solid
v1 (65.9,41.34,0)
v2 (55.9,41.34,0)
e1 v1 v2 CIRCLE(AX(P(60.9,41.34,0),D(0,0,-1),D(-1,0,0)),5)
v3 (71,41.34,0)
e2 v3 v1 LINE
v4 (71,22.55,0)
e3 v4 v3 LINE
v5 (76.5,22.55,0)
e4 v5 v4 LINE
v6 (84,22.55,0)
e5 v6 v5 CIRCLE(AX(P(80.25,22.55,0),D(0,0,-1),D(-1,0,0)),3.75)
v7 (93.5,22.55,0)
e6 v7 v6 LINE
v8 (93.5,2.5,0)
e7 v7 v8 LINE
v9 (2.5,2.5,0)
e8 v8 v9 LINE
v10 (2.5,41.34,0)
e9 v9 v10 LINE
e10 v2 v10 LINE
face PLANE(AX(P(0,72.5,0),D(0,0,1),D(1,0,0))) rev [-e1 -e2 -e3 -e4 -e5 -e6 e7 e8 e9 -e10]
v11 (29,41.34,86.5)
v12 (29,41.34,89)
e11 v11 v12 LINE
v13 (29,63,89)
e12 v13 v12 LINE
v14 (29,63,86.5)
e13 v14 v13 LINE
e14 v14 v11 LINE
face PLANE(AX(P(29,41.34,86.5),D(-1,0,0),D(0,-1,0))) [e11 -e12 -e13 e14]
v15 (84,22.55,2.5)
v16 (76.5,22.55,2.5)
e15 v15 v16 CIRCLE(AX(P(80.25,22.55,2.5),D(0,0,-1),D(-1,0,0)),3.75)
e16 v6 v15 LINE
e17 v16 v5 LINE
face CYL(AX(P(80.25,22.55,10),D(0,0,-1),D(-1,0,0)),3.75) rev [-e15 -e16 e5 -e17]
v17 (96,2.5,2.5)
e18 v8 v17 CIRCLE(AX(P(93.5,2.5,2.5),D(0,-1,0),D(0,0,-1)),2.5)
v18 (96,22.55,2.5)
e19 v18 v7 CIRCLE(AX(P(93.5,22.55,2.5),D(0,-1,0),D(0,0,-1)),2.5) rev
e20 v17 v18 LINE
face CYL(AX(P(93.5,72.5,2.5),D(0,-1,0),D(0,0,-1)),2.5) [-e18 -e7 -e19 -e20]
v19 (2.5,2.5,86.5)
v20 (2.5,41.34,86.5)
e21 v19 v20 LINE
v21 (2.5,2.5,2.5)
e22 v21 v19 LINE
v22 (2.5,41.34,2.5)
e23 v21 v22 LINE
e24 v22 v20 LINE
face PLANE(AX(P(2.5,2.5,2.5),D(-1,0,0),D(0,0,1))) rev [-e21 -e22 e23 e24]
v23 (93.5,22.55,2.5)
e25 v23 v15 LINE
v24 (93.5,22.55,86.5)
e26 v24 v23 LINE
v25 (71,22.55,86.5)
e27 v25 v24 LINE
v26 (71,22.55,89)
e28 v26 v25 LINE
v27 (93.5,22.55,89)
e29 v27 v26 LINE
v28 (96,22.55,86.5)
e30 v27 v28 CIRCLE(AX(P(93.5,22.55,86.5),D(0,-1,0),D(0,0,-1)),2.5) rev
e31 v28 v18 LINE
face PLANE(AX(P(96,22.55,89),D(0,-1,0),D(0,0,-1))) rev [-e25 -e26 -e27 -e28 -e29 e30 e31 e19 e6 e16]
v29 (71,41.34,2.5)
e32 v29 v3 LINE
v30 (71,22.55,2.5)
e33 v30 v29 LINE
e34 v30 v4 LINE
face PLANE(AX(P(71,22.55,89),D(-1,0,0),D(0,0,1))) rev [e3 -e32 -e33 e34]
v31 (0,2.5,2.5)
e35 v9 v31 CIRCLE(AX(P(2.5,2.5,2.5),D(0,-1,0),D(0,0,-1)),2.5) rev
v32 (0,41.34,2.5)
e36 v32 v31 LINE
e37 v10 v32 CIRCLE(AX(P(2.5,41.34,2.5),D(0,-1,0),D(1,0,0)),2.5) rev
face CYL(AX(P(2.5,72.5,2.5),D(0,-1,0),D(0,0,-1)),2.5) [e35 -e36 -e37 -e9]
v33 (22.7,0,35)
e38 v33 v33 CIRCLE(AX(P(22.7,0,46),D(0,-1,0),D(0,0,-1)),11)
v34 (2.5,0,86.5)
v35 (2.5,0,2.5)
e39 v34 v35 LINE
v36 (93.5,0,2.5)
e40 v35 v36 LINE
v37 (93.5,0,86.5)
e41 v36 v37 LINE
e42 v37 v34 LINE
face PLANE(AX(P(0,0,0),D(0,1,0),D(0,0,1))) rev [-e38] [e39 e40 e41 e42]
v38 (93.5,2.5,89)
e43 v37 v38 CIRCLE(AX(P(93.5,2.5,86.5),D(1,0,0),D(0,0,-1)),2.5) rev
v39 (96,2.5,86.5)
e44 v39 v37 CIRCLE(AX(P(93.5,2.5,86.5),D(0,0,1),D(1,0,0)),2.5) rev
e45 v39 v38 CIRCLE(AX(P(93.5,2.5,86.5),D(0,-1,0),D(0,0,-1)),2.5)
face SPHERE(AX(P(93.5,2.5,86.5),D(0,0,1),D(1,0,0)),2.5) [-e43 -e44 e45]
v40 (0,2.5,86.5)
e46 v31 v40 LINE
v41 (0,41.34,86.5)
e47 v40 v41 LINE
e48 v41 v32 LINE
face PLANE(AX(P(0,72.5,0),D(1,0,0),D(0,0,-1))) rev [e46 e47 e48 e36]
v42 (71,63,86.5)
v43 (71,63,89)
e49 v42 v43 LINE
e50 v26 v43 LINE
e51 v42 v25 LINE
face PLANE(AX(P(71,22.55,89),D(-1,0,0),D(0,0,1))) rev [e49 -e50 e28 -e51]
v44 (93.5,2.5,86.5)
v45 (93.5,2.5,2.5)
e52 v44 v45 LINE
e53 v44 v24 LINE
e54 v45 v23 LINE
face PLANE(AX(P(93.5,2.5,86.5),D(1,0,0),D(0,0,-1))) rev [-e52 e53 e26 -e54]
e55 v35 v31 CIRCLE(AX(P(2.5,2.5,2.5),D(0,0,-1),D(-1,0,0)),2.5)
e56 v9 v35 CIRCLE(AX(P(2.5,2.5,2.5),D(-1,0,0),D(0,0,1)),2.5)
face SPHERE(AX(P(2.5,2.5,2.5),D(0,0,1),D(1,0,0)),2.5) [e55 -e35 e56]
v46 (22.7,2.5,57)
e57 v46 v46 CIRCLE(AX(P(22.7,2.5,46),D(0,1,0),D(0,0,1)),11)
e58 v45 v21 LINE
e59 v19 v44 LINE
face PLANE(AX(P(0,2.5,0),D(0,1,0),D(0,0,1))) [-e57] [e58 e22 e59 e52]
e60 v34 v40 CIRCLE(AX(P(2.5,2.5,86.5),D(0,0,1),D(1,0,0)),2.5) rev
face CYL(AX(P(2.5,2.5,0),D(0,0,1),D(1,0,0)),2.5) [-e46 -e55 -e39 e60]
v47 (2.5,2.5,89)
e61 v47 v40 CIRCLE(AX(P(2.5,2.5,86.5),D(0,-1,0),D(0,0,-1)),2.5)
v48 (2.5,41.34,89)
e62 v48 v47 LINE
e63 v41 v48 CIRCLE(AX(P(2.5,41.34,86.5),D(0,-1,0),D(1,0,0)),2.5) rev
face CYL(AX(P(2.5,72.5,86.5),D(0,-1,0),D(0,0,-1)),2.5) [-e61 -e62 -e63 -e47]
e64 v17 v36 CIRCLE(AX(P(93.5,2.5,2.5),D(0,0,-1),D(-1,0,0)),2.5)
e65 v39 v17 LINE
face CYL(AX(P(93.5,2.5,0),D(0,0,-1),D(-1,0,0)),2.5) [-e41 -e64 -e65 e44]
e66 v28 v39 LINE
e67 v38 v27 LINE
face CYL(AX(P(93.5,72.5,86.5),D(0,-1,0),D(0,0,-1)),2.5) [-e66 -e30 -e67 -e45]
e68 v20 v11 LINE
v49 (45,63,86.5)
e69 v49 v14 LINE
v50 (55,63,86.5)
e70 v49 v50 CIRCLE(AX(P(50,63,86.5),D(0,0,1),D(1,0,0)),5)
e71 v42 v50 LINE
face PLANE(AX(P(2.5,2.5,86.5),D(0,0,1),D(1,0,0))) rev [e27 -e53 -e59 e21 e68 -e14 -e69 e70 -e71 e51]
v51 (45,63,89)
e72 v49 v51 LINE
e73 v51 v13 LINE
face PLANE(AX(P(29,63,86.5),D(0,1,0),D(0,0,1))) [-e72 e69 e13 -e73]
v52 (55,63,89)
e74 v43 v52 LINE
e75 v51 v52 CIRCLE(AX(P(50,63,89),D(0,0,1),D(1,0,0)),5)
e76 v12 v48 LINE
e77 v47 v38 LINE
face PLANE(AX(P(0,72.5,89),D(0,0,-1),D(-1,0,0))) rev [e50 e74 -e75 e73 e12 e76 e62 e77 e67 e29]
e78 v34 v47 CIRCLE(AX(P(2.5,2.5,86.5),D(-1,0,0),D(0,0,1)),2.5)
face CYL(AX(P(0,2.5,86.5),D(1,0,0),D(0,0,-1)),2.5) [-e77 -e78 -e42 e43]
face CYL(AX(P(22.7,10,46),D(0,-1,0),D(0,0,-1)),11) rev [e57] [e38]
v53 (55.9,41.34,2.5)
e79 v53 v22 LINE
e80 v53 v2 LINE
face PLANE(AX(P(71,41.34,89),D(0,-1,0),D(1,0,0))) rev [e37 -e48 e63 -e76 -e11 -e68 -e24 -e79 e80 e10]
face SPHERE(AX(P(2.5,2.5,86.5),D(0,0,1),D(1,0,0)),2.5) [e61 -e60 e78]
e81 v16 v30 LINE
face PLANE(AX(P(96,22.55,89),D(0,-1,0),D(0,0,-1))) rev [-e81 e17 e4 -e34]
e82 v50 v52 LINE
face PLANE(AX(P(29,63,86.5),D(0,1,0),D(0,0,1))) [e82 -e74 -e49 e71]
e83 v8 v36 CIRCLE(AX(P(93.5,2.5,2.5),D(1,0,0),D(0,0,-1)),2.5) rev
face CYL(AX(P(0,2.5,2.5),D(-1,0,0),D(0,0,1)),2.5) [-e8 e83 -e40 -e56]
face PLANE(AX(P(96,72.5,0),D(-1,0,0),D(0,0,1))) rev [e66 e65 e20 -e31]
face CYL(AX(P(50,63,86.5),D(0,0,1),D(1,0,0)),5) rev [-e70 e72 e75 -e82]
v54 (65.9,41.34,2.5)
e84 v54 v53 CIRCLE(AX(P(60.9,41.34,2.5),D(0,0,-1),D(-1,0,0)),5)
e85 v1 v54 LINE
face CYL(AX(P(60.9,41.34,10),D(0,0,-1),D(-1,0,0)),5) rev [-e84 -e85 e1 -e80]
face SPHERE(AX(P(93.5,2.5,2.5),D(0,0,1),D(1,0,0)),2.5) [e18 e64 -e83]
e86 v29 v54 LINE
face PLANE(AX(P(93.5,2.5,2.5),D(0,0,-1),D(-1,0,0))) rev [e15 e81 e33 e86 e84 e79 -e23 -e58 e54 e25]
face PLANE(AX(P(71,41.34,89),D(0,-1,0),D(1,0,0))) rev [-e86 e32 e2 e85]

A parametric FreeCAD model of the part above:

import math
import FreeCAD as App
import Part
import Sketcher
from FreeCAD import Vector


def edges_at(feature, points):
    """Names of the edges that pass closest to the given points."""
    edges = feature.Shape.Edges
    near = lambda p: min(range(len(edges)), key=lambda i: edges[i].distToShape(Part.Vertex(*p))[0])
    return sorted({f"Edge{near(p) + 1}" for p in points})

doc = App.newDocument("Part")
body = doc.addObject("PartDesign::Body", "Body")

sketch1 = body.newObject("Sketcher::SketchObject", "Sketch")
sketch1.AttachmentSupport = (doc.getObject("XZ_Plane"), [""])
sketch1.MapMode = "FlatFace"
sketch1.addGeometry([
    Part.LineSegment(Vector(0, 0, 0), Vector(0, 89, 0)),
    Part.LineSegment(Vector(0, 89, 0), Vector(96, 89, 0)),
    Part.LineSegment(Vector(96, 89, 0), Vector(96, 0, 0)),
    Part.LineSegment(Vector(96, 0, 0), Vector(0, 0, 0)),
], False)
sketch1.addConstraint([
    Sketcher.Constraint("Coincident", 0, 2, 1, 1),
    Sketcher.Constraint("Coincident", 1, 2, 2, 1),
    Sketcher.Constraint("Coincident", 2, 2, 3, 1),
    Sketcher.Constraint("Coincident", 3, 2, 0, 1),
    Sketcher.Constraint("Vertical", 0),
    Sketcher.Constraint("Horizontal", 1),
    Sketcher.Constraint("Vertical", 2),
    Sketcher.Constraint("Horizontal", 3),
    Sketcher.Constraint("Coincident", 3, 2, -1, 1),
    Sketcher.Constraint("DistanceX", 1, 1, 1, 2, 96.0),
    Sketcher.Constraint("DistanceY", 0, 1, 0, 2, 89.0),
])
pad1 = body.newObject("PartDesign::Pad", "Pad")
pad1.Profile = sketch1
pad1.Length = 72.5
pad1.Reversed = True

sketch2 = body.newObject("Sketcher::SketchObject", "Sketch001")
sketch2.AttachmentSupport = (doc.getObject("XZ_Plane"), [""])
sketch2.MapMode = "FlatFace"
sketch2.AttachmentOffset = App.Placement(Vector(0, 0, -72.5), App.Rotation())
sketch2.addGeometry([
    Part.LineSegment(Vector(2.5, 2.5, 0), Vector(2.5, 86.5, 0)),
    Part.LineSegment(Vector(2.5, 86.5, 0), Vector(93.5, 86.5, 0)),
    Part.LineSegment(Vector(93.5, 86.5, 0), Vector(93.5, 2.5, 0)),
    Part.LineSegment(Vector(93.5, 2.5, 0), Vector(2.5, 2.5, 0)),
], False)
sketch2.addConstraint([
    Sketcher.Constraint("Coincident", 0, 2, 1, 1),
    Sketcher.Constraint("Coincident", 1, 2, 2, 1),
    Sketcher.Constraint("Coincident", 2, 2, 3, 1),
    Sketcher.Constraint("Coincident", 3, 2, 0, 1),
    Sketcher.Constraint("Vertical", 0),
    Sketcher.Constraint("Horizontal", 1),
    Sketcher.Constraint("Vertical", 2),
    Sketcher.Constraint("Horizontal", 3),
    Sketcher.Constraint("DistanceX", 1, 1, 1, 2, 91.0),
    Sketcher.Constraint("DistanceY", 0, 1, 0, 2, 84.0),
    Sketcher.Constraint("DistanceX", -1, 1, 0, 2, 2.5),
    Sketcher.Constraint("DistanceY", -1, 1, 0, 2, 86.5),
])
pocket1 = body.newObject("PartDesign::Pocket", "Pocket")
pocket1.Profile = sketch2
pocket1.Length = 70
pocket1.Reversed = True

sketch3 = body.newObject("Sketcher::SketchObject", "Sketch002")
sketch3.AttachmentSupport = (doc.getObject("XZ_Plane"), [""])
sketch3.MapMode = "FlatFace"
sketch3.addGeometry(Part.Circle(Vector(22.7, 46, 0), Vector(0, 0, 1), 11), False)
sketch3.addConstraint([
    Sketcher.Constraint("Diameter", 0, 22.0),
    Sketcher.Constraint("DistanceY", -1, 1, 0, 3, 46.0),
    Sketcher.Constraint("DistanceX", -1, 1, 0, 3, 22.7),
])
pocket2 = body.newObject("PartDesign::Pocket", "Pocket001")
pocket2.Profile = sketch3
pocket2.Length = 10

sketch4 = body.newObject("Sketcher::SketchObject", "Sketch003")
sketch4.AttachmentSupport = (doc.getObject("XY_Plane"), [""])
sketch4.MapMode = "FlatFace"
sketch4.addGeometry([
    Part.LineSegment(Vector(96, 22.55, 0), Vector(71, 22.55, 0)),
    Part.LineSegment(Vector(71, 22.55, 0), Vector(71, 41.34, 0)),
    Part.LineSegment(Vector(71, 41.34, 0), Vector(0, 41.34, 0)),
    Part.LineSegment(Vector(0, 41.34, 0), Vector(0, 72.5, 0)),
    Part.LineSegment(Vector(0, 72.5, 0), Vector(96, 72.5, 0)),
    Part.LineSegment(Vector(96, 72.5, 0), Vector(96, 22.55, 0)),
], False)
sketch4.addConstraint([
    Sketcher.Constraint("Coincident", 0, 2, 1, 1),
    Sketcher.Constraint("Coincident", 1, 2, 2, 1),
    Sketcher.Constraint("Coincident", 2, 2, 3, 1),
    Sketcher.Constraint("Coincident", 3, 2, 4, 1),
    Sketcher.Constraint("Coincident", 4, 2, 5, 1),
    Sketcher.Constraint("Coincident", 5, 2, 0, 1),
    Sketcher.Constraint("Horizontal", 0),
    Sketcher.Constraint("Vertical", 1),
    Sketcher.Constraint("Horizontal", 2),
    Sketcher.Constraint("Vertical", 3),
    Sketcher.Constraint("Horizontal", 4),
    Sketcher.Constraint("Vertical", 5),
    Sketcher.Constraint("PointOnObject", 2, 2, -2),
    Sketcher.Constraint("DistanceX", 0, 2, 0, 1, 25.0),
    Sketcher.Constraint("DistanceX", 2, 2, 2, 1, 71.0),
    Sketcher.Constraint("DistanceY", 1, 1, 1, 2, 18.79),
    Sketcher.Constraint("DistanceY", 3, 1, 3, 2, 31.16),
    Sketcher.Constraint("DistanceY", -1, 1, 3, 2, 72.5),
])
pocket3 = body.newObject("PartDesign::Pocket", "Pocket002")
pocket3.Profile = sketch4
pocket3.Type = "ThroughAll"
pocket3.Reversed = True

sketch5 = body.newObject("Sketcher::SketchObject", "Sketch004")
sketch5.AttachmentSupport = (doc.getObject("XY_Plane"), [""])
sketch5.MapMode = "FlatFace"
sketch5.addGeometry([
    Part.LineSegment(Vector(76.5, 22.55, 0), Vector(84, 22.55, 0)),
    Part.ArcOfCircle(Part.Circle(Vector(80.25, 22.55, 0), Vector(0, 0, 1), 3.75), math.radians(180), math.radians(360)),
    Part.LineSegment(Vector(55.9, 41.34, 0), Vector(65.9, 41.34, 0)),
    Part.ArcOfCircle(Part.Circle(Vector(60.9, 41.34, 0), Vector(0, 0, 1), 5), math.radians(180), math.radians(360)),
], False)
sketch5.addConstraint([
    Sketcher.Constraint("Coincident", 0, 1, 1, 1),
    Sketcher.Constraint("Coincident", 1, 2, 0, 2),
    Sketcher.Constraint("Coincident", 2, 1, 3, 1),
    Sketcher.Constraint("Coincident", 3, 2, 2, 2),
    Sketcher.Constraint("Horizontal", 0),
    Sketcher.Constraint("Horizontal", 2),
    Sketcher.Constraint("Horizontal", 1, 3, 0, 1),
    Sketcher.Constraint("Horizontal", 3, 3, 2, 1),
    Sketcher.Constraint("Radius", 3, 5.0),
    Sketcher.Constraint("Radius", 1, 3.75),
    Sketcher.Constraint("DistanceX", -1, 1, 1, 2, 84.0),
    Sketcher.Constraint("DistanceX", -1, 1, 3, 3, 60.9),
    Sketcher.Constraint("DistanceY", -1, 1, 1, 3, 22.55),
    Sketcher.Constraint("DistanceY", -1, 1, 3, 3, 41.34),
])
pocket4 = body.newObject("PartDesign::Pocket", "Pocket003")
pocket4.Profile = sketch5
pocket4.Length = 10
pocket4.Reversed = True

sketch6 = body.newObject("Sketcher::SketchObject", "Sketch005")
sketch6.AttachmentSupport = (doc.getObject("XY_Plane"), [""])
sketch6.MapMode = "FlatFace"
sketch6.AttachmentOffset = App.Placement(Vector(0, 0, 89), App.Rotation())
sketch6.addGeometry([
    Part.LineSegment(Vector(29, 63, 0), Vector(29, 41.34, 0)),
    Part.LineSegment(Vector(29, 41.34, 0), Vector(71, 41.34, 0)),
    Part.LineSegment(Vector(71, 41.34, 0), Vector(71, 63, 0)),
    Part.LineSegment(Vector(71, 63, 0), Vector(29, 63, 0)),
], False)
sketch6.addConstraint([
    Sketcher.Constraint("Coincident", 0, 2, 1, 1),
    Sketcher.Constraint("Coincident", 1, 2, 2, 1),
    Sketcher.Constraint("Coincident", 2, 2, 3, 1),
    Sketcher.Constraint("Coincident", 3, 2, 0, 1),
    Sketcher.Constraint("Vertical", 0),
    Sketcher.Constraint("Horizontal", 1),
    Sketcher.Constraint("Vertical", 2),
    Sketcher.Constraint("Horizontal", 3),
    Sketcher.Constraint("DistanceX", 1, 1, 1, 2, 42.0),
    Sketcher.Constraint("DistanceX", -1, 1, 0, 2, 29.0),
    Sketcher.Constraint("DistanceY", -1, 1, 2, 2, 63.0),
    Sketcher.Constraint("DistanceY", 0, 2, 0, 1, 21.66),
])
pad2 = body.newObject("PartDesign::Pad", "Pad001")
pad2.Profile = sketch6
pad2.Length = 2.5
pad2.Reversed = True

sketch7 = body.newObject("Sketcher::SketchObject", "Sketch006")
sketch7.AttachmentSupport = (doc.getObject("XY_Plane"), [""])
sketch7.MapMode = "FlatFace"
sketch7.AttachmentOffset = App.Placement(Vector(0, 0, 89), App.Rotation())
sketch7.addGeometry([
    Part.LineSegment(Vector(55, 63, 0), Vector(45, 63, 0)),
    Part.ArcOfCircle(Part.Circle(Vector(50, 63, 0), Vector(0, 0, 1), 5), math.radians(180), math.radians(360)),
], False)
sketch7.addConstraint([
    Sketcher.Constraint("Coincident", 0, 1, 1, 2),
    Sketcher.Constraint("Coincident", 1, 1, 0, 2),
    Sketcher.Constraint("Horizontal", 0),
    Sketcher.Constraint("Horizontal", 1, 3, 0, 1),
    Sketcher.Constraint("Radius", 1, 5.0),
    Sketcher.Constraint("DistanceX", -1, 1, 1, 3, 50.0),
    Sketcher.Constraint("DistanceY", -1, 1, 1, 3, 63.0),
])
pocket5 = body.newObject("PartDesign::Pocket", "Pocket004")
pocket5.Profile = sketch7
pocket5.Length = 2.5
doc.recompute()

fillet = body.newObject("PartDesign::Fillet", "Fillet")
fillet.Base = (pocket5, edges_at(pocket5, [
    (0, 20.67, 0),
    (96, 11.275, 0),
    (96, 11.275, 89),
    (0, 20.67, 89),
    (48, 0, 0),
    (96, 0, 44.5),
    (48, 0, 89),
    (0, 0, 44.5),
]))
fillet.Radius = 2.5

doc.recompute()
